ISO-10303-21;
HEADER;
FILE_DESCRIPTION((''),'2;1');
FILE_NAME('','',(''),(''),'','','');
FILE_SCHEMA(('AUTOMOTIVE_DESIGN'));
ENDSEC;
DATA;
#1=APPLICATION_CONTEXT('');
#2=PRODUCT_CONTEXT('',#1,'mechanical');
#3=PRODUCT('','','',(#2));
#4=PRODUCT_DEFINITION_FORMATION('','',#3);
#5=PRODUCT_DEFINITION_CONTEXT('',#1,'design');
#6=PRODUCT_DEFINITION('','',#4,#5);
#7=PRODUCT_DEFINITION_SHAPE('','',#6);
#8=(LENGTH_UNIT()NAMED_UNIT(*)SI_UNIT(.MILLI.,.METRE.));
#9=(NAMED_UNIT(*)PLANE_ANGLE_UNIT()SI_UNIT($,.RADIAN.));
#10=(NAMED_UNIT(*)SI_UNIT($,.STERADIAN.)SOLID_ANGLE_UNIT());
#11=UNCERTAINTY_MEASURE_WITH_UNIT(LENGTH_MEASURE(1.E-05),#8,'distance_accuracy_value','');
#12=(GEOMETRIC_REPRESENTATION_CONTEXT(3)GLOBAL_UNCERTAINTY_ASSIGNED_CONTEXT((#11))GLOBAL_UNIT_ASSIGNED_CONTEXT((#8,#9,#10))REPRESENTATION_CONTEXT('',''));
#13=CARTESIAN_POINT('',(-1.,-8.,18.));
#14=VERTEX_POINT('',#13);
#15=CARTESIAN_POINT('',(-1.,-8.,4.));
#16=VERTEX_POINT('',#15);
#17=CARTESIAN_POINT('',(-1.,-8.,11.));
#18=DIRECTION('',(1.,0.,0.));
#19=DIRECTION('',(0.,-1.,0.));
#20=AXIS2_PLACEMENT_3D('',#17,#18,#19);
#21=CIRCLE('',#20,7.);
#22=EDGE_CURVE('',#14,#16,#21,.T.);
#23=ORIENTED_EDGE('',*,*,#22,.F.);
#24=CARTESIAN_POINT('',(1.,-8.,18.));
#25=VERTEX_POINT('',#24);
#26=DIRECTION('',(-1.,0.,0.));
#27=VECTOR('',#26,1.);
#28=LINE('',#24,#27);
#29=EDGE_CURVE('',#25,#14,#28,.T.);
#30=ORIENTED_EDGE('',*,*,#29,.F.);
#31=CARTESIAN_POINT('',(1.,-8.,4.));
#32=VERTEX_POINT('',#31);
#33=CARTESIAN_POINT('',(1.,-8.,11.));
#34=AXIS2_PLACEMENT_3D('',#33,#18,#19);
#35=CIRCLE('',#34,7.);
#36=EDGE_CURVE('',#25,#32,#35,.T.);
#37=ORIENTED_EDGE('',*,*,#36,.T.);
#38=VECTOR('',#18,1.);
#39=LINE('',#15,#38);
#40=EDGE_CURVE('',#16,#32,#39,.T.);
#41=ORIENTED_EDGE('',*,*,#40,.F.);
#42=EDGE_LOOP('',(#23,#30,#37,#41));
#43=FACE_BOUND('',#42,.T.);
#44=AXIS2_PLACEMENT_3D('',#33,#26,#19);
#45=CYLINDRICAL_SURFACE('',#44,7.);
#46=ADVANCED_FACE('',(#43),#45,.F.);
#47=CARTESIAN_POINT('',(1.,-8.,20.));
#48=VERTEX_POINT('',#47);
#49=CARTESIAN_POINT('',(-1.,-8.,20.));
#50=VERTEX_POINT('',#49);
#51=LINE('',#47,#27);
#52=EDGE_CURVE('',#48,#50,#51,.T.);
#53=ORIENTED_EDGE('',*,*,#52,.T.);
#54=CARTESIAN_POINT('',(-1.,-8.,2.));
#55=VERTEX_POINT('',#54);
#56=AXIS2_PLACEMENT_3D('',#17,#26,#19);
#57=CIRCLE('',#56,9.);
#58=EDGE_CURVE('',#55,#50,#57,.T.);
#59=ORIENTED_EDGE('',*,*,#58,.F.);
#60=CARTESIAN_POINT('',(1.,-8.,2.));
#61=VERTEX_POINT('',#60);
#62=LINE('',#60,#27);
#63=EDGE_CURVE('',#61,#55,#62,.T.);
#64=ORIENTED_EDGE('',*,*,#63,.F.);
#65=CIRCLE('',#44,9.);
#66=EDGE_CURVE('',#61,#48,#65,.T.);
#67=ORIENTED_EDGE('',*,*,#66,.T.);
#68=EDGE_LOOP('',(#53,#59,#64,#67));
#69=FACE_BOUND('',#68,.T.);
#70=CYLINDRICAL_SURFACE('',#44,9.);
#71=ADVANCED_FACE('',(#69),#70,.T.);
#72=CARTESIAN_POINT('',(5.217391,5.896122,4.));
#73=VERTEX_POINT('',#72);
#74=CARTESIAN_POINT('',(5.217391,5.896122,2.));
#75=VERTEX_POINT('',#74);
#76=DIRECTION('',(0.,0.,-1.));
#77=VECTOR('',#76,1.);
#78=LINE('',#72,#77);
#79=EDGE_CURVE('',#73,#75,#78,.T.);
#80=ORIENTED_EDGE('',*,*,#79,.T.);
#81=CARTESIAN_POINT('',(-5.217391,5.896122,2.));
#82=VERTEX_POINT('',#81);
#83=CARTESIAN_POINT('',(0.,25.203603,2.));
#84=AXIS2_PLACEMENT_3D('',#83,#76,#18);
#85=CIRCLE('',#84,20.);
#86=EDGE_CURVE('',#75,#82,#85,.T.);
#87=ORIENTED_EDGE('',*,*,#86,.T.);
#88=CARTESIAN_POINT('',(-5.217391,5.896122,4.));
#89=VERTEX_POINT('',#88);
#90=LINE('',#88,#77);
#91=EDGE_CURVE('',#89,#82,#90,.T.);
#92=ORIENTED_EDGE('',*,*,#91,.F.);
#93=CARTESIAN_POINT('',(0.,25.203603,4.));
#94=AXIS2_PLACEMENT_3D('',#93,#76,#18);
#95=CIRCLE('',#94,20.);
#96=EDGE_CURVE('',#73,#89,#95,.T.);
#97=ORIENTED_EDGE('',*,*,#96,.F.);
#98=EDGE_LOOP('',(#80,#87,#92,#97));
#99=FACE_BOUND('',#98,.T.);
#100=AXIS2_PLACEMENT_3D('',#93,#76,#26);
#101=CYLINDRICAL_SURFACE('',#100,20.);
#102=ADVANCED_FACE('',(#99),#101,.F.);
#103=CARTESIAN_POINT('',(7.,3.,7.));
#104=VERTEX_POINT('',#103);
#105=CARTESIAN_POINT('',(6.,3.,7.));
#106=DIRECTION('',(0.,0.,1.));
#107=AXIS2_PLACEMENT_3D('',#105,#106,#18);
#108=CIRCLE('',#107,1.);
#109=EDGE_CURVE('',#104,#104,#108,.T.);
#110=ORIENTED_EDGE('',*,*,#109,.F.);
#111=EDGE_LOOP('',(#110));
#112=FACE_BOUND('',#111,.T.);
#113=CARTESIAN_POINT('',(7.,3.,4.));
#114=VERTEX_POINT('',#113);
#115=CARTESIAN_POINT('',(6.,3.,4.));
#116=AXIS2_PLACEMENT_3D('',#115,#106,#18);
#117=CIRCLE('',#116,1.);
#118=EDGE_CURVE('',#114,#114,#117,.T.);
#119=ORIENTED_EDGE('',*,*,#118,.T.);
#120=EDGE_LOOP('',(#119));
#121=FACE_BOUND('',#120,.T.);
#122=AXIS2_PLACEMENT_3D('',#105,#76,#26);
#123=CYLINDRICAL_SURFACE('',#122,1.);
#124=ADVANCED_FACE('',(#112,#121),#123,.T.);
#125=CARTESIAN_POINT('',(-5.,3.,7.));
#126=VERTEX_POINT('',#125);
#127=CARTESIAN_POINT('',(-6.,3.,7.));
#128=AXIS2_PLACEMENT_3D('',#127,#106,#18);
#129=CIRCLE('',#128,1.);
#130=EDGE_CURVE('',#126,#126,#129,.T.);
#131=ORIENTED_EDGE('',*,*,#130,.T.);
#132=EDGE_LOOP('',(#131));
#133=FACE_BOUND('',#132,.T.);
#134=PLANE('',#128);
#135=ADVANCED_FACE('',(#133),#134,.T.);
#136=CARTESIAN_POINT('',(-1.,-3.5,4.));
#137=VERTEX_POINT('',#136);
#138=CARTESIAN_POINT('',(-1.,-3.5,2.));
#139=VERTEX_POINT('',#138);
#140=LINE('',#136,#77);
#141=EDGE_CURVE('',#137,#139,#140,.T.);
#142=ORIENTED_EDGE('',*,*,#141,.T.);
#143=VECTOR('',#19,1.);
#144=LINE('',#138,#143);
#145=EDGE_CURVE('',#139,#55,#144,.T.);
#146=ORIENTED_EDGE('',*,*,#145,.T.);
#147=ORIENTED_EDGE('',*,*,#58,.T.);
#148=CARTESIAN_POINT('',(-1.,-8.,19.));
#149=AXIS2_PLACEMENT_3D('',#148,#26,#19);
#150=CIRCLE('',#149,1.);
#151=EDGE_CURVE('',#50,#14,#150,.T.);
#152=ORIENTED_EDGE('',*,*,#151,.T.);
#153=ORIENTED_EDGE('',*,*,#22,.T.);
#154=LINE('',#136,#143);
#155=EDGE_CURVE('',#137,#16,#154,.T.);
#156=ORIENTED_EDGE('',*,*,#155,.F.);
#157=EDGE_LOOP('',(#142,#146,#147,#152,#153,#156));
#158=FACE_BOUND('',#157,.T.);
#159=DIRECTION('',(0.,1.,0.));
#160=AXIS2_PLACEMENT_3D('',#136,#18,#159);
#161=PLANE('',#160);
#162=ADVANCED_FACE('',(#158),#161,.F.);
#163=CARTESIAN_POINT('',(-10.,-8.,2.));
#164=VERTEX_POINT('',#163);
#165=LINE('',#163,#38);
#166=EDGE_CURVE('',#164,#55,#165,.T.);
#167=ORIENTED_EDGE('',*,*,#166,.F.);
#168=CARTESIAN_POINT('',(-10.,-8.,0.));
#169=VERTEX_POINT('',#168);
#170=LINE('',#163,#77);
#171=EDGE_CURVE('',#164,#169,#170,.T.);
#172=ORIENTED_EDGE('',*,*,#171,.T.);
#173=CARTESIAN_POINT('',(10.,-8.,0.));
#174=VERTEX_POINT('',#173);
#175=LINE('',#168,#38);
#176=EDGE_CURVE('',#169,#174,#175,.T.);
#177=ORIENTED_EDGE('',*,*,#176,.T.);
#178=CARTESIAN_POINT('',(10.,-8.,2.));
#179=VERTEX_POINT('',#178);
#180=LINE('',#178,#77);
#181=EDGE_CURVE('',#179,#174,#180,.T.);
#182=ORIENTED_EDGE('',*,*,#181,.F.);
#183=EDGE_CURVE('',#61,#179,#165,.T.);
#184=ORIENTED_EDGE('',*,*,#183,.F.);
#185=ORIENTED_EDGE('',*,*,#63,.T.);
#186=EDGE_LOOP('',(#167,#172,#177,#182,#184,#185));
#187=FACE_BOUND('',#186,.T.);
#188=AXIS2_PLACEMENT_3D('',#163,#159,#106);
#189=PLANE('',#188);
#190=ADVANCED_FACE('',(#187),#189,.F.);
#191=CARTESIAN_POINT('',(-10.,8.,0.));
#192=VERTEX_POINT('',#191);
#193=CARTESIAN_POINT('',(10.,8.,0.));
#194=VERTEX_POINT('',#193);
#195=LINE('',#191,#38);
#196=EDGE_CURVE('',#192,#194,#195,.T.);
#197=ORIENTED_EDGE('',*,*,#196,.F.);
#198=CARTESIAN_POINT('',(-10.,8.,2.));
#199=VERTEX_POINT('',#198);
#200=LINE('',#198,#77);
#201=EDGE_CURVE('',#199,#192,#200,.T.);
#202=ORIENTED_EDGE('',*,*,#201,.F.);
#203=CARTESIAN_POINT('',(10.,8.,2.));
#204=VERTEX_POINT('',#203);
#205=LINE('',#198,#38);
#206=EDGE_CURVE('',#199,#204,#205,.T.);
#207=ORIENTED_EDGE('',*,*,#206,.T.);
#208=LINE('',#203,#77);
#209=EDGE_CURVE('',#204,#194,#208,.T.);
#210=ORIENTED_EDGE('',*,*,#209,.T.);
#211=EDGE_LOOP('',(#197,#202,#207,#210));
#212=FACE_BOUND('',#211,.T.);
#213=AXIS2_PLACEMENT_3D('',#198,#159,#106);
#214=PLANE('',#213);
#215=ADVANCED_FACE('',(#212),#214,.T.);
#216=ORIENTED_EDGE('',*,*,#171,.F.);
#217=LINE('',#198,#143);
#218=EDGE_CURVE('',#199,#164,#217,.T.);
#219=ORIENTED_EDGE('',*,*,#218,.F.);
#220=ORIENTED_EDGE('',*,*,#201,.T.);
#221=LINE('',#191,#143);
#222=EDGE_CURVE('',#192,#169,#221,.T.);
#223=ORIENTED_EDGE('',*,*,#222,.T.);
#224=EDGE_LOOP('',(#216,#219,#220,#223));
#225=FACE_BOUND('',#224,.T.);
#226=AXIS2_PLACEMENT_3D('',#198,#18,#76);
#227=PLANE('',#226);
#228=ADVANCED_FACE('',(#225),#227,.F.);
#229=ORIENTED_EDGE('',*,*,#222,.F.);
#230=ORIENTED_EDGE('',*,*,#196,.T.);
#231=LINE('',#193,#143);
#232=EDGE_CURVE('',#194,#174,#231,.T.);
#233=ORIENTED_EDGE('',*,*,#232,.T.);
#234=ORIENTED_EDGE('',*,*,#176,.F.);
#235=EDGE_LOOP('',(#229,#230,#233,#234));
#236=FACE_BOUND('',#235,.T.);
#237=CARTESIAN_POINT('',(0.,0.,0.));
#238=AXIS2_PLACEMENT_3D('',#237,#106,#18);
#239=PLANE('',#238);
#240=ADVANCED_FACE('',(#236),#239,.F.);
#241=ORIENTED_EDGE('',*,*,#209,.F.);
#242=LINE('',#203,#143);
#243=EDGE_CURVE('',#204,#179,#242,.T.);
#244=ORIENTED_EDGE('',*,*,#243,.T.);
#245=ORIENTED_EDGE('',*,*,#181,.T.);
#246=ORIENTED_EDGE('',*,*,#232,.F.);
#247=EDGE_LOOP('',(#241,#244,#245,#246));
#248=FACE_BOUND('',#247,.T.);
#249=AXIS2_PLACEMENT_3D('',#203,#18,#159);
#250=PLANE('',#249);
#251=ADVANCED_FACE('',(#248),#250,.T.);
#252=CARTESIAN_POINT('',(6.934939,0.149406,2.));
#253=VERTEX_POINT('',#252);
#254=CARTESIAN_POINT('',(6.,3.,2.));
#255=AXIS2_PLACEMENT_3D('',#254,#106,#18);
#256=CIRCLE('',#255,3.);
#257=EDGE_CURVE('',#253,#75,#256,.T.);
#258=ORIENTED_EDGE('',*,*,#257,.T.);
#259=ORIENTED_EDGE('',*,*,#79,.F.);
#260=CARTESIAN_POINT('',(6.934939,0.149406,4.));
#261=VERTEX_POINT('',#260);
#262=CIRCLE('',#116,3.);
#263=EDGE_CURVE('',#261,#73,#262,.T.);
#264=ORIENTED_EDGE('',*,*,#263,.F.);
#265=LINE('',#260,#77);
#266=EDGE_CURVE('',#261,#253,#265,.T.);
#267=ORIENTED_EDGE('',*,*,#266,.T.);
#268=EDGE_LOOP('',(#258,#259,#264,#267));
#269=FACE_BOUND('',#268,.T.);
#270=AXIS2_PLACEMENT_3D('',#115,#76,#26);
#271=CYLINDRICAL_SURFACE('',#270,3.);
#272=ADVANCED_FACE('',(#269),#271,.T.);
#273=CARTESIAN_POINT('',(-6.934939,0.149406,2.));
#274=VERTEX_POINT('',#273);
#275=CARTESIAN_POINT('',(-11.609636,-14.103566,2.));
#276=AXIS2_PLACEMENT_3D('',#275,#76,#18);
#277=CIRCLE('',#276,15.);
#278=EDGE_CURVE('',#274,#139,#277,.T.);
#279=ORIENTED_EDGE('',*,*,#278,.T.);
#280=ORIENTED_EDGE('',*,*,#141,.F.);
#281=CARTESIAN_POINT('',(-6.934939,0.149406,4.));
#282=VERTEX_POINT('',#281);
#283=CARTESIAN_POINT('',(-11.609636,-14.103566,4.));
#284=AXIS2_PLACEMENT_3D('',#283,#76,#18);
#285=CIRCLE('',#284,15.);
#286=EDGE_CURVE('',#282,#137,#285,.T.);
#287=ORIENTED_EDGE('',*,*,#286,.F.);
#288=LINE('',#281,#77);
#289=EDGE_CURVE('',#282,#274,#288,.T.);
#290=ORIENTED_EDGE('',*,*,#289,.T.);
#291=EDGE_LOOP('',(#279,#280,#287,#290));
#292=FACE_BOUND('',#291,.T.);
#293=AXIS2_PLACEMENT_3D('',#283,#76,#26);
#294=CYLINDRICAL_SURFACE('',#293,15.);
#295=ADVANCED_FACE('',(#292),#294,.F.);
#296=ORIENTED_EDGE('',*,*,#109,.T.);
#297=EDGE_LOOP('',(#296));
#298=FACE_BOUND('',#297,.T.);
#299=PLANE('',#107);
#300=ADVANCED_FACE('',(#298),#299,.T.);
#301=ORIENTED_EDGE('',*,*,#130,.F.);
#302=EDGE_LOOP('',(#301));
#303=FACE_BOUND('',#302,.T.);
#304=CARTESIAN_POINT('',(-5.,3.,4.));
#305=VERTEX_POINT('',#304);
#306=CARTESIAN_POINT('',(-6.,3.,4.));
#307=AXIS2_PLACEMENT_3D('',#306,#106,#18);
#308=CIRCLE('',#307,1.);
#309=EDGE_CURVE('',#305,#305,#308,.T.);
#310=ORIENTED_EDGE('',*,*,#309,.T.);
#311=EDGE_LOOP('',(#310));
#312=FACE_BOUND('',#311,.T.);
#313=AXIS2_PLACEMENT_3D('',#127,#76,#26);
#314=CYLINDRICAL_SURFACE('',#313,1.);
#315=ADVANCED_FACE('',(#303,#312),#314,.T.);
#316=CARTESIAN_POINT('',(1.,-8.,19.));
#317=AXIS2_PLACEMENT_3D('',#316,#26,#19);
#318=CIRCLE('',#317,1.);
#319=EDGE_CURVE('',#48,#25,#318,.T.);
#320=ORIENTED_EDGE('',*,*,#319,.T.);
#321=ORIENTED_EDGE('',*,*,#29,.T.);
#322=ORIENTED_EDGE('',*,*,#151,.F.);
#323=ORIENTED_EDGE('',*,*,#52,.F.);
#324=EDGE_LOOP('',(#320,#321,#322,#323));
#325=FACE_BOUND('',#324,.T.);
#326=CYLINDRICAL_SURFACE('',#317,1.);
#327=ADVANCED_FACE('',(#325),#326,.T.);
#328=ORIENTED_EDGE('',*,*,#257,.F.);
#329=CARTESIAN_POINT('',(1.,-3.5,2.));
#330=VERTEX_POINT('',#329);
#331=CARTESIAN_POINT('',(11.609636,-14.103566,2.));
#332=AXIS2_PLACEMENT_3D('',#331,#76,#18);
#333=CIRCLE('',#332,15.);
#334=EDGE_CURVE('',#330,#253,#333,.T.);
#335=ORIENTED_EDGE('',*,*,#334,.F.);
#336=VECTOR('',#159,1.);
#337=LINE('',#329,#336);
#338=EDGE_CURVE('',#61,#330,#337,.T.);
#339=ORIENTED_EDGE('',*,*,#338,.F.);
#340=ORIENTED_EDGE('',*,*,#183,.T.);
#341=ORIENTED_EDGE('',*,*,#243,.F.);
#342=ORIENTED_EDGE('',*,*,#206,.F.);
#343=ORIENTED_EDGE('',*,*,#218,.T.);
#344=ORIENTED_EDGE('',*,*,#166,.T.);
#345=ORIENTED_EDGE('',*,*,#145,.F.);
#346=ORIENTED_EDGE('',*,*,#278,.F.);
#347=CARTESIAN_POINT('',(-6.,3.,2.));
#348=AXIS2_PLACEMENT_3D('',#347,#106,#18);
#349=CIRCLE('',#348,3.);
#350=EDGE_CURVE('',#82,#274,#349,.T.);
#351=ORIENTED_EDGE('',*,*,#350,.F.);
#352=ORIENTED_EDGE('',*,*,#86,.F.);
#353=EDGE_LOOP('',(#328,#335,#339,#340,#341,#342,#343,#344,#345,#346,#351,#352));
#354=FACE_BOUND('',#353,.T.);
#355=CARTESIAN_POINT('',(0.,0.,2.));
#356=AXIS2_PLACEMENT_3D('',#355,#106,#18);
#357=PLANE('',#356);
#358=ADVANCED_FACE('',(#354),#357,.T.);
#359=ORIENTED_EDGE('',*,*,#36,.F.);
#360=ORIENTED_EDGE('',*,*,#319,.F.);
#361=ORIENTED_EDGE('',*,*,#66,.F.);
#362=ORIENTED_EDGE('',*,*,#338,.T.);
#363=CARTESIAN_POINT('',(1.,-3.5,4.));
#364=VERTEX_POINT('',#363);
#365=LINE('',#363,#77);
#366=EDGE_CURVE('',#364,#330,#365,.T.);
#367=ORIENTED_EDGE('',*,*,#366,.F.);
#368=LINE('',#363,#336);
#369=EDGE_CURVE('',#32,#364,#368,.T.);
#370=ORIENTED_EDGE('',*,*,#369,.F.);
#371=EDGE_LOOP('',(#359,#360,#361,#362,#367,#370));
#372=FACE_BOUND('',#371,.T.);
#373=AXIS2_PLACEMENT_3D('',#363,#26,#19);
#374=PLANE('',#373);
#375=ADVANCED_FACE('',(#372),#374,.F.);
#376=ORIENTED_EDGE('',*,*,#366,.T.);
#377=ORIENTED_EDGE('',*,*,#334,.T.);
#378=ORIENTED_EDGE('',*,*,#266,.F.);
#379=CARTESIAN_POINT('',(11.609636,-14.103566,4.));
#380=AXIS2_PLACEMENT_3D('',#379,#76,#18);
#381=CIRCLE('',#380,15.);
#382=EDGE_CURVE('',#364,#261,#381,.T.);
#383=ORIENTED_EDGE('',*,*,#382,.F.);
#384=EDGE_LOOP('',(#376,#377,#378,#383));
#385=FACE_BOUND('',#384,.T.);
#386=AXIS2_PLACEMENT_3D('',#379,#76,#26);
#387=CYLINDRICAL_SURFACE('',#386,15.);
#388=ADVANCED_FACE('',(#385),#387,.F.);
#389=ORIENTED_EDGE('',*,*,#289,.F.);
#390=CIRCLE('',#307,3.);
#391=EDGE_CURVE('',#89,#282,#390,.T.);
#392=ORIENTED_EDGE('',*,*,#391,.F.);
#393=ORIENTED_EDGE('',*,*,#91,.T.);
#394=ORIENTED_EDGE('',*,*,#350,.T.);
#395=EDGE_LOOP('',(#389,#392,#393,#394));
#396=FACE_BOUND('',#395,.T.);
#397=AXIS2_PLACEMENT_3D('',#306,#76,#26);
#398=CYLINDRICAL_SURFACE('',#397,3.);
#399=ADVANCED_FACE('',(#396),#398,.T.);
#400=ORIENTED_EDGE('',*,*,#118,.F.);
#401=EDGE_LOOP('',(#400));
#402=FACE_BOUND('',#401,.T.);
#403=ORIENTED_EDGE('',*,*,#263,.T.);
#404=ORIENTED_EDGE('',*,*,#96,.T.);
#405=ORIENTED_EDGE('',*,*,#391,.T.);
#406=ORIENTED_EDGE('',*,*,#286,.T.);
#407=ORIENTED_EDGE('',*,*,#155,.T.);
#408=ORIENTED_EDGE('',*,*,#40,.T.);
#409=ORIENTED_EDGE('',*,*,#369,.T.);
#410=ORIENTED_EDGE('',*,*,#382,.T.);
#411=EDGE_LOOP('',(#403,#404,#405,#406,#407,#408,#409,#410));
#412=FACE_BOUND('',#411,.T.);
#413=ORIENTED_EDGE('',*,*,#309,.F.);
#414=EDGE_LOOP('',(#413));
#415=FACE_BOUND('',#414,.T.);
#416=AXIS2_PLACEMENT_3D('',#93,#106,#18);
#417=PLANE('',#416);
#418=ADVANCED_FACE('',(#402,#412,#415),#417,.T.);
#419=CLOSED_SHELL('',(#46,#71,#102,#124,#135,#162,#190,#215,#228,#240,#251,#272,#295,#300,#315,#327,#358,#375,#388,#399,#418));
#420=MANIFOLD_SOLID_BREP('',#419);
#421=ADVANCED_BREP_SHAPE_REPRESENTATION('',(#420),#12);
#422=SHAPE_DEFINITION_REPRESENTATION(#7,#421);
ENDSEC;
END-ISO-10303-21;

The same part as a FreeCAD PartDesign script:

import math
import FreeCAD as App
import Part
import Sketcher

V = App.Vector
Q = App.Units.Quantity

doc = App.newDocument("Part")
body = doc.addObject("PartDesign::Body", "Body")

# Sketch on XY plane
sketch1 = body.newObject("Sketcher::SketchObject", "Sketch")
sketch1.AttachmentSupport = (doc.getObject("XY_Plane"), [""])
sketch1.MapMode = "FlatFace"
sketch1.addGeometry([
    Part.LineSegment(V(-10, 8, 0), V(-10, -8, 0)),
    Part.LineSegment(V(-10, -8, 0), V(10, -8, 0)),
    Part.LineSegment(V(10, -8, 0), V(10, 8, 0)),
    Part.LineSegment(V(10, 8, 0), V(-10, 8, 0)),
], False)
sketch1.addConstraint([
    Sketcher.Constraint("Coincident", 0, 2, 1, 1),
    Sketcher.Constraint("Coincident", 1, 2, 2, 1),
    Sketcher.Constraint("Coincident", 2, 2, 3, 1),
    Sketcher.Constraint("Coincident", 3, 2, 0, 1),
    Sketcher.Constraint("Vertical", 0),
    Sketcher.Constraint("Horizontal", 1),
    Sketcher.Constraint("Vertical", 2),
    Sketcher.Constraint("Horizontal", 3),
    Sketcher.Constraint("Symmetric", 0, 2, 2, 2, -1, 1),
    Sketcher.Constraint("DistanceX", 1, 1, 1, 2, Q("20 mm")),
    Sketcher.Constraint("DistanceY", 0, 2, 0, 1, Q("16 mm")),
])
pad1 = body.newObject("PartDesign::Pad", "Pad")
pad1.Profile = sketch1
pad1.Length = 2

# Sketch on XY plane
sketch2 = body.newObject("Sketcher::SketchObject", "Sketch001")
sketch2.AttachmentSupport = (doc.getObject("XY_Plane"), [""])
sketch2.MapMode = "FlatFace"
sketch2.AttachmentOffset = App.Placement(V(0, 0, 2), App.Rotation())
sketch2.addGeometry([
    Part.LineSegment(V(-1, -3.5, 0), V(-1, -8, 0)),  # 0
    Part.LineSegment(V(-1, -8, 0), V(1, -8, 0)),  # 1
    Part.LineSegment(V(1, -8, 0), V(1, -3.5, 0)),  # 2
    Part.ArcOfCircle(Part.Circle(V(11.6, -14.1, 0), V(0, 0, 1), 15), math.radians(108), math.radians(135)),  # 3
    Part.ArcOfCircle(Part.Circle(V(6, 3, 0), V(0, 0, 1), 3), math.radians(-72), math.radians(105)),  # 4
    Part.ArcOfCircle(Part.Circle(V(0, 25.2, 0), V(0, 0, 1), 20), math.radians(-105), math.radians(-75)),  # 5
    Part.ArcOfCircle(Part.Circle(V(-6, 3, 0), V(0, 0, 1), 3), math.radians(75), math.radians(252)),  # 6
    Part.ArcOfCircle(Part.Circle(V(-11.6, -14.1, 0), V(0, 0, 1), 15), math.radians(45), math.radians(72)),  # 7
], False)
sketch2.addConstraint([
    Sketcher.Constraint("Coincident", 0, 2, 1, 1),
    Sketcher.Constraint("Coincident", 1, 2, 2, 1),
    Sketcher.Constraint("Coincident", 2, 2, 3, 2),
    Sketcher.Constraint("Tangent", 3, 1, 4, 1),
    Sketcher.Constraint("Tangent", 4, 2, 5, 2),
    Sketcher.Constraint("Tangent", 5, 1, 6, 1),
    Sketcher.Constraint("Tangent", 6, 2, 7, 2),
    Sketcher.Constraint("Coincident", 7, 1, 0, 1),
    Sketcher.Constraint("Vertical", 0),
    Sketcher.Constraint("Horizontal", 1),
    Sketcher.Constraint("Vertical", 2),
    Sketcher.Constraint("Equal", 4, 6),
    Sketcher.Constraint("Equal", 3, 7),
    Sketcher.Constraint("Symmetric", 4, 3, 6, 3, -2),
    Sketcher.Constraint("Symmetric", 2, 2, 7, 1, -2),
    Sketcher.Constraint("Radius", 3, Q("15 mm")),
    Sketcher.Constraint("Radius", 4, Q("3 mm")),
    Sketcher.Constraint("Radius", 5, Q("20 mm")),
    Sketcher.Constraint("DistanceX", 1, 1, 1, 2, Q("2 mm")),
    Sketcher.Constraint("DistanceY", 0, 2, 0, 1, Q("4.5 mm")),
    Sketcher.Constraint("DistanceX", -1, 1, 4, 3, Q("6 mm")),
    Sketcher.Constraint("DistanceY", -1, 1, 4, 3, Q("3 mm")),
    Sketcher.Constraint("DistanceY", 0, 2, -1, 1, Q("8 mm")),
])
pad2 = body.newObject("PartDesign::Pad", "Pad001")
pad2.Profile = sketch2
pad2.Length = 2

# Sketch on XY plane
sketch3 = body.newObject("Sketcher::SketchObject", "Sketch002")
sketch3.AttachmentSupport = (doc.getObject("XY_Plane"), [""])
sketch3.MapMode = "FlatFace"
sketch3.AttachmentOffset = App.Placement(V(0, 0, 4), App.Rotation())
sketch3.addGeometry([
    Part.Circle(V(-6, 3, 0), V(0, 0, 1), 1),
    Part.Circle(V(6, 3, 0), V(0, 0, 1), 1),
], False)
sketch3.addConstraint([
    Sketcher.Constraint("Equal", 0, 1),
    Sketcher.Constraint("Symmetric", 0, 3, 1, 3, -2),
    Sketcher.Constraint("Diameter", 0, Q("2 mm")),
    Sketcher.Constraint("DistanceX", 0, 3, -1, 1, Q("6 mm")),
    Sketcher.Constraint("DistanceY", -1, 1, 0, 3, Q("3 mm")),
])
pad3 = body.newObject("PartDesign::Pad", "Pad002")
pad3.Profile = sketch3
pad3.Length = 3

# Sketch on YZ plane
sketch4 = body.newObject("Sketcher::SketchObject", "Sketch003")
sketch4.AttachmentSupport = (doc.getObject("YZ_Plane"), [""])
sketch4.MapMode = "FlatFace"
sketch4.AttachmentOffset = App.Placement(V(0, 0, -1), App.Rotation())
sketch4.addGeometry([
    Part.LineSegment(V(-8, 4, 0), V(-8, 2, 0)),
    Part.ArcOfCircle(Part.Circle(V(-8, 11, 0), V(0, 0, 1), 9), math.radians(90), math.radians(270)),
    Part.ArcOfCircle(Part.Circle(V(-8, 19, 0), V(0, 0, 1), 1), math.radians(-90), math.radians(90)),
    Part.ArcOfCircle(Part.Circle(V(-8, 11, 0), V(0, 0, 1), 7), math.radians(90), math.radians(270)),
], False)
sketch4.addConstraint([
    Sketcher.Constraint("Coincident", 0, 2, 1, 2),
    Sketcher.Constraint("Tangent", 1, 1, 2, 2),
    Sketcher.Constraint("Tangent", 2, 1, 3, 1),
    Sketcher.Constraint("Coincident", 3, 2, 0, 1),
    Sketcher.Constraint("Vertical", 0),
    Sketcher.Constraint("Coincident", 3, 3, 1, 3),
    Sketcher.Constraint("Vertical", 1, 3, 2, 3),
    Sketcher.Constraint("Vertical", 3, 3, 0, 2),
    Sketcher.Constraint("Radius", 1, Q("9 mm")),
    Sketcher.Constraint("Radius", 2, Q("1 mm")),
    Sketcher.Constraint("DistanceX", 1, 3, -1, 1, Q("8 mm")),
    Sketcher.Constraint("DistanceY", -1, 1, 1, 3, Q("11 mm")),
])
pad4 = body.newObject("PartDesign::Pad", "Pad003")
pad4.Profile = sketch4
pad4.Length = 2

doc.recompute()
